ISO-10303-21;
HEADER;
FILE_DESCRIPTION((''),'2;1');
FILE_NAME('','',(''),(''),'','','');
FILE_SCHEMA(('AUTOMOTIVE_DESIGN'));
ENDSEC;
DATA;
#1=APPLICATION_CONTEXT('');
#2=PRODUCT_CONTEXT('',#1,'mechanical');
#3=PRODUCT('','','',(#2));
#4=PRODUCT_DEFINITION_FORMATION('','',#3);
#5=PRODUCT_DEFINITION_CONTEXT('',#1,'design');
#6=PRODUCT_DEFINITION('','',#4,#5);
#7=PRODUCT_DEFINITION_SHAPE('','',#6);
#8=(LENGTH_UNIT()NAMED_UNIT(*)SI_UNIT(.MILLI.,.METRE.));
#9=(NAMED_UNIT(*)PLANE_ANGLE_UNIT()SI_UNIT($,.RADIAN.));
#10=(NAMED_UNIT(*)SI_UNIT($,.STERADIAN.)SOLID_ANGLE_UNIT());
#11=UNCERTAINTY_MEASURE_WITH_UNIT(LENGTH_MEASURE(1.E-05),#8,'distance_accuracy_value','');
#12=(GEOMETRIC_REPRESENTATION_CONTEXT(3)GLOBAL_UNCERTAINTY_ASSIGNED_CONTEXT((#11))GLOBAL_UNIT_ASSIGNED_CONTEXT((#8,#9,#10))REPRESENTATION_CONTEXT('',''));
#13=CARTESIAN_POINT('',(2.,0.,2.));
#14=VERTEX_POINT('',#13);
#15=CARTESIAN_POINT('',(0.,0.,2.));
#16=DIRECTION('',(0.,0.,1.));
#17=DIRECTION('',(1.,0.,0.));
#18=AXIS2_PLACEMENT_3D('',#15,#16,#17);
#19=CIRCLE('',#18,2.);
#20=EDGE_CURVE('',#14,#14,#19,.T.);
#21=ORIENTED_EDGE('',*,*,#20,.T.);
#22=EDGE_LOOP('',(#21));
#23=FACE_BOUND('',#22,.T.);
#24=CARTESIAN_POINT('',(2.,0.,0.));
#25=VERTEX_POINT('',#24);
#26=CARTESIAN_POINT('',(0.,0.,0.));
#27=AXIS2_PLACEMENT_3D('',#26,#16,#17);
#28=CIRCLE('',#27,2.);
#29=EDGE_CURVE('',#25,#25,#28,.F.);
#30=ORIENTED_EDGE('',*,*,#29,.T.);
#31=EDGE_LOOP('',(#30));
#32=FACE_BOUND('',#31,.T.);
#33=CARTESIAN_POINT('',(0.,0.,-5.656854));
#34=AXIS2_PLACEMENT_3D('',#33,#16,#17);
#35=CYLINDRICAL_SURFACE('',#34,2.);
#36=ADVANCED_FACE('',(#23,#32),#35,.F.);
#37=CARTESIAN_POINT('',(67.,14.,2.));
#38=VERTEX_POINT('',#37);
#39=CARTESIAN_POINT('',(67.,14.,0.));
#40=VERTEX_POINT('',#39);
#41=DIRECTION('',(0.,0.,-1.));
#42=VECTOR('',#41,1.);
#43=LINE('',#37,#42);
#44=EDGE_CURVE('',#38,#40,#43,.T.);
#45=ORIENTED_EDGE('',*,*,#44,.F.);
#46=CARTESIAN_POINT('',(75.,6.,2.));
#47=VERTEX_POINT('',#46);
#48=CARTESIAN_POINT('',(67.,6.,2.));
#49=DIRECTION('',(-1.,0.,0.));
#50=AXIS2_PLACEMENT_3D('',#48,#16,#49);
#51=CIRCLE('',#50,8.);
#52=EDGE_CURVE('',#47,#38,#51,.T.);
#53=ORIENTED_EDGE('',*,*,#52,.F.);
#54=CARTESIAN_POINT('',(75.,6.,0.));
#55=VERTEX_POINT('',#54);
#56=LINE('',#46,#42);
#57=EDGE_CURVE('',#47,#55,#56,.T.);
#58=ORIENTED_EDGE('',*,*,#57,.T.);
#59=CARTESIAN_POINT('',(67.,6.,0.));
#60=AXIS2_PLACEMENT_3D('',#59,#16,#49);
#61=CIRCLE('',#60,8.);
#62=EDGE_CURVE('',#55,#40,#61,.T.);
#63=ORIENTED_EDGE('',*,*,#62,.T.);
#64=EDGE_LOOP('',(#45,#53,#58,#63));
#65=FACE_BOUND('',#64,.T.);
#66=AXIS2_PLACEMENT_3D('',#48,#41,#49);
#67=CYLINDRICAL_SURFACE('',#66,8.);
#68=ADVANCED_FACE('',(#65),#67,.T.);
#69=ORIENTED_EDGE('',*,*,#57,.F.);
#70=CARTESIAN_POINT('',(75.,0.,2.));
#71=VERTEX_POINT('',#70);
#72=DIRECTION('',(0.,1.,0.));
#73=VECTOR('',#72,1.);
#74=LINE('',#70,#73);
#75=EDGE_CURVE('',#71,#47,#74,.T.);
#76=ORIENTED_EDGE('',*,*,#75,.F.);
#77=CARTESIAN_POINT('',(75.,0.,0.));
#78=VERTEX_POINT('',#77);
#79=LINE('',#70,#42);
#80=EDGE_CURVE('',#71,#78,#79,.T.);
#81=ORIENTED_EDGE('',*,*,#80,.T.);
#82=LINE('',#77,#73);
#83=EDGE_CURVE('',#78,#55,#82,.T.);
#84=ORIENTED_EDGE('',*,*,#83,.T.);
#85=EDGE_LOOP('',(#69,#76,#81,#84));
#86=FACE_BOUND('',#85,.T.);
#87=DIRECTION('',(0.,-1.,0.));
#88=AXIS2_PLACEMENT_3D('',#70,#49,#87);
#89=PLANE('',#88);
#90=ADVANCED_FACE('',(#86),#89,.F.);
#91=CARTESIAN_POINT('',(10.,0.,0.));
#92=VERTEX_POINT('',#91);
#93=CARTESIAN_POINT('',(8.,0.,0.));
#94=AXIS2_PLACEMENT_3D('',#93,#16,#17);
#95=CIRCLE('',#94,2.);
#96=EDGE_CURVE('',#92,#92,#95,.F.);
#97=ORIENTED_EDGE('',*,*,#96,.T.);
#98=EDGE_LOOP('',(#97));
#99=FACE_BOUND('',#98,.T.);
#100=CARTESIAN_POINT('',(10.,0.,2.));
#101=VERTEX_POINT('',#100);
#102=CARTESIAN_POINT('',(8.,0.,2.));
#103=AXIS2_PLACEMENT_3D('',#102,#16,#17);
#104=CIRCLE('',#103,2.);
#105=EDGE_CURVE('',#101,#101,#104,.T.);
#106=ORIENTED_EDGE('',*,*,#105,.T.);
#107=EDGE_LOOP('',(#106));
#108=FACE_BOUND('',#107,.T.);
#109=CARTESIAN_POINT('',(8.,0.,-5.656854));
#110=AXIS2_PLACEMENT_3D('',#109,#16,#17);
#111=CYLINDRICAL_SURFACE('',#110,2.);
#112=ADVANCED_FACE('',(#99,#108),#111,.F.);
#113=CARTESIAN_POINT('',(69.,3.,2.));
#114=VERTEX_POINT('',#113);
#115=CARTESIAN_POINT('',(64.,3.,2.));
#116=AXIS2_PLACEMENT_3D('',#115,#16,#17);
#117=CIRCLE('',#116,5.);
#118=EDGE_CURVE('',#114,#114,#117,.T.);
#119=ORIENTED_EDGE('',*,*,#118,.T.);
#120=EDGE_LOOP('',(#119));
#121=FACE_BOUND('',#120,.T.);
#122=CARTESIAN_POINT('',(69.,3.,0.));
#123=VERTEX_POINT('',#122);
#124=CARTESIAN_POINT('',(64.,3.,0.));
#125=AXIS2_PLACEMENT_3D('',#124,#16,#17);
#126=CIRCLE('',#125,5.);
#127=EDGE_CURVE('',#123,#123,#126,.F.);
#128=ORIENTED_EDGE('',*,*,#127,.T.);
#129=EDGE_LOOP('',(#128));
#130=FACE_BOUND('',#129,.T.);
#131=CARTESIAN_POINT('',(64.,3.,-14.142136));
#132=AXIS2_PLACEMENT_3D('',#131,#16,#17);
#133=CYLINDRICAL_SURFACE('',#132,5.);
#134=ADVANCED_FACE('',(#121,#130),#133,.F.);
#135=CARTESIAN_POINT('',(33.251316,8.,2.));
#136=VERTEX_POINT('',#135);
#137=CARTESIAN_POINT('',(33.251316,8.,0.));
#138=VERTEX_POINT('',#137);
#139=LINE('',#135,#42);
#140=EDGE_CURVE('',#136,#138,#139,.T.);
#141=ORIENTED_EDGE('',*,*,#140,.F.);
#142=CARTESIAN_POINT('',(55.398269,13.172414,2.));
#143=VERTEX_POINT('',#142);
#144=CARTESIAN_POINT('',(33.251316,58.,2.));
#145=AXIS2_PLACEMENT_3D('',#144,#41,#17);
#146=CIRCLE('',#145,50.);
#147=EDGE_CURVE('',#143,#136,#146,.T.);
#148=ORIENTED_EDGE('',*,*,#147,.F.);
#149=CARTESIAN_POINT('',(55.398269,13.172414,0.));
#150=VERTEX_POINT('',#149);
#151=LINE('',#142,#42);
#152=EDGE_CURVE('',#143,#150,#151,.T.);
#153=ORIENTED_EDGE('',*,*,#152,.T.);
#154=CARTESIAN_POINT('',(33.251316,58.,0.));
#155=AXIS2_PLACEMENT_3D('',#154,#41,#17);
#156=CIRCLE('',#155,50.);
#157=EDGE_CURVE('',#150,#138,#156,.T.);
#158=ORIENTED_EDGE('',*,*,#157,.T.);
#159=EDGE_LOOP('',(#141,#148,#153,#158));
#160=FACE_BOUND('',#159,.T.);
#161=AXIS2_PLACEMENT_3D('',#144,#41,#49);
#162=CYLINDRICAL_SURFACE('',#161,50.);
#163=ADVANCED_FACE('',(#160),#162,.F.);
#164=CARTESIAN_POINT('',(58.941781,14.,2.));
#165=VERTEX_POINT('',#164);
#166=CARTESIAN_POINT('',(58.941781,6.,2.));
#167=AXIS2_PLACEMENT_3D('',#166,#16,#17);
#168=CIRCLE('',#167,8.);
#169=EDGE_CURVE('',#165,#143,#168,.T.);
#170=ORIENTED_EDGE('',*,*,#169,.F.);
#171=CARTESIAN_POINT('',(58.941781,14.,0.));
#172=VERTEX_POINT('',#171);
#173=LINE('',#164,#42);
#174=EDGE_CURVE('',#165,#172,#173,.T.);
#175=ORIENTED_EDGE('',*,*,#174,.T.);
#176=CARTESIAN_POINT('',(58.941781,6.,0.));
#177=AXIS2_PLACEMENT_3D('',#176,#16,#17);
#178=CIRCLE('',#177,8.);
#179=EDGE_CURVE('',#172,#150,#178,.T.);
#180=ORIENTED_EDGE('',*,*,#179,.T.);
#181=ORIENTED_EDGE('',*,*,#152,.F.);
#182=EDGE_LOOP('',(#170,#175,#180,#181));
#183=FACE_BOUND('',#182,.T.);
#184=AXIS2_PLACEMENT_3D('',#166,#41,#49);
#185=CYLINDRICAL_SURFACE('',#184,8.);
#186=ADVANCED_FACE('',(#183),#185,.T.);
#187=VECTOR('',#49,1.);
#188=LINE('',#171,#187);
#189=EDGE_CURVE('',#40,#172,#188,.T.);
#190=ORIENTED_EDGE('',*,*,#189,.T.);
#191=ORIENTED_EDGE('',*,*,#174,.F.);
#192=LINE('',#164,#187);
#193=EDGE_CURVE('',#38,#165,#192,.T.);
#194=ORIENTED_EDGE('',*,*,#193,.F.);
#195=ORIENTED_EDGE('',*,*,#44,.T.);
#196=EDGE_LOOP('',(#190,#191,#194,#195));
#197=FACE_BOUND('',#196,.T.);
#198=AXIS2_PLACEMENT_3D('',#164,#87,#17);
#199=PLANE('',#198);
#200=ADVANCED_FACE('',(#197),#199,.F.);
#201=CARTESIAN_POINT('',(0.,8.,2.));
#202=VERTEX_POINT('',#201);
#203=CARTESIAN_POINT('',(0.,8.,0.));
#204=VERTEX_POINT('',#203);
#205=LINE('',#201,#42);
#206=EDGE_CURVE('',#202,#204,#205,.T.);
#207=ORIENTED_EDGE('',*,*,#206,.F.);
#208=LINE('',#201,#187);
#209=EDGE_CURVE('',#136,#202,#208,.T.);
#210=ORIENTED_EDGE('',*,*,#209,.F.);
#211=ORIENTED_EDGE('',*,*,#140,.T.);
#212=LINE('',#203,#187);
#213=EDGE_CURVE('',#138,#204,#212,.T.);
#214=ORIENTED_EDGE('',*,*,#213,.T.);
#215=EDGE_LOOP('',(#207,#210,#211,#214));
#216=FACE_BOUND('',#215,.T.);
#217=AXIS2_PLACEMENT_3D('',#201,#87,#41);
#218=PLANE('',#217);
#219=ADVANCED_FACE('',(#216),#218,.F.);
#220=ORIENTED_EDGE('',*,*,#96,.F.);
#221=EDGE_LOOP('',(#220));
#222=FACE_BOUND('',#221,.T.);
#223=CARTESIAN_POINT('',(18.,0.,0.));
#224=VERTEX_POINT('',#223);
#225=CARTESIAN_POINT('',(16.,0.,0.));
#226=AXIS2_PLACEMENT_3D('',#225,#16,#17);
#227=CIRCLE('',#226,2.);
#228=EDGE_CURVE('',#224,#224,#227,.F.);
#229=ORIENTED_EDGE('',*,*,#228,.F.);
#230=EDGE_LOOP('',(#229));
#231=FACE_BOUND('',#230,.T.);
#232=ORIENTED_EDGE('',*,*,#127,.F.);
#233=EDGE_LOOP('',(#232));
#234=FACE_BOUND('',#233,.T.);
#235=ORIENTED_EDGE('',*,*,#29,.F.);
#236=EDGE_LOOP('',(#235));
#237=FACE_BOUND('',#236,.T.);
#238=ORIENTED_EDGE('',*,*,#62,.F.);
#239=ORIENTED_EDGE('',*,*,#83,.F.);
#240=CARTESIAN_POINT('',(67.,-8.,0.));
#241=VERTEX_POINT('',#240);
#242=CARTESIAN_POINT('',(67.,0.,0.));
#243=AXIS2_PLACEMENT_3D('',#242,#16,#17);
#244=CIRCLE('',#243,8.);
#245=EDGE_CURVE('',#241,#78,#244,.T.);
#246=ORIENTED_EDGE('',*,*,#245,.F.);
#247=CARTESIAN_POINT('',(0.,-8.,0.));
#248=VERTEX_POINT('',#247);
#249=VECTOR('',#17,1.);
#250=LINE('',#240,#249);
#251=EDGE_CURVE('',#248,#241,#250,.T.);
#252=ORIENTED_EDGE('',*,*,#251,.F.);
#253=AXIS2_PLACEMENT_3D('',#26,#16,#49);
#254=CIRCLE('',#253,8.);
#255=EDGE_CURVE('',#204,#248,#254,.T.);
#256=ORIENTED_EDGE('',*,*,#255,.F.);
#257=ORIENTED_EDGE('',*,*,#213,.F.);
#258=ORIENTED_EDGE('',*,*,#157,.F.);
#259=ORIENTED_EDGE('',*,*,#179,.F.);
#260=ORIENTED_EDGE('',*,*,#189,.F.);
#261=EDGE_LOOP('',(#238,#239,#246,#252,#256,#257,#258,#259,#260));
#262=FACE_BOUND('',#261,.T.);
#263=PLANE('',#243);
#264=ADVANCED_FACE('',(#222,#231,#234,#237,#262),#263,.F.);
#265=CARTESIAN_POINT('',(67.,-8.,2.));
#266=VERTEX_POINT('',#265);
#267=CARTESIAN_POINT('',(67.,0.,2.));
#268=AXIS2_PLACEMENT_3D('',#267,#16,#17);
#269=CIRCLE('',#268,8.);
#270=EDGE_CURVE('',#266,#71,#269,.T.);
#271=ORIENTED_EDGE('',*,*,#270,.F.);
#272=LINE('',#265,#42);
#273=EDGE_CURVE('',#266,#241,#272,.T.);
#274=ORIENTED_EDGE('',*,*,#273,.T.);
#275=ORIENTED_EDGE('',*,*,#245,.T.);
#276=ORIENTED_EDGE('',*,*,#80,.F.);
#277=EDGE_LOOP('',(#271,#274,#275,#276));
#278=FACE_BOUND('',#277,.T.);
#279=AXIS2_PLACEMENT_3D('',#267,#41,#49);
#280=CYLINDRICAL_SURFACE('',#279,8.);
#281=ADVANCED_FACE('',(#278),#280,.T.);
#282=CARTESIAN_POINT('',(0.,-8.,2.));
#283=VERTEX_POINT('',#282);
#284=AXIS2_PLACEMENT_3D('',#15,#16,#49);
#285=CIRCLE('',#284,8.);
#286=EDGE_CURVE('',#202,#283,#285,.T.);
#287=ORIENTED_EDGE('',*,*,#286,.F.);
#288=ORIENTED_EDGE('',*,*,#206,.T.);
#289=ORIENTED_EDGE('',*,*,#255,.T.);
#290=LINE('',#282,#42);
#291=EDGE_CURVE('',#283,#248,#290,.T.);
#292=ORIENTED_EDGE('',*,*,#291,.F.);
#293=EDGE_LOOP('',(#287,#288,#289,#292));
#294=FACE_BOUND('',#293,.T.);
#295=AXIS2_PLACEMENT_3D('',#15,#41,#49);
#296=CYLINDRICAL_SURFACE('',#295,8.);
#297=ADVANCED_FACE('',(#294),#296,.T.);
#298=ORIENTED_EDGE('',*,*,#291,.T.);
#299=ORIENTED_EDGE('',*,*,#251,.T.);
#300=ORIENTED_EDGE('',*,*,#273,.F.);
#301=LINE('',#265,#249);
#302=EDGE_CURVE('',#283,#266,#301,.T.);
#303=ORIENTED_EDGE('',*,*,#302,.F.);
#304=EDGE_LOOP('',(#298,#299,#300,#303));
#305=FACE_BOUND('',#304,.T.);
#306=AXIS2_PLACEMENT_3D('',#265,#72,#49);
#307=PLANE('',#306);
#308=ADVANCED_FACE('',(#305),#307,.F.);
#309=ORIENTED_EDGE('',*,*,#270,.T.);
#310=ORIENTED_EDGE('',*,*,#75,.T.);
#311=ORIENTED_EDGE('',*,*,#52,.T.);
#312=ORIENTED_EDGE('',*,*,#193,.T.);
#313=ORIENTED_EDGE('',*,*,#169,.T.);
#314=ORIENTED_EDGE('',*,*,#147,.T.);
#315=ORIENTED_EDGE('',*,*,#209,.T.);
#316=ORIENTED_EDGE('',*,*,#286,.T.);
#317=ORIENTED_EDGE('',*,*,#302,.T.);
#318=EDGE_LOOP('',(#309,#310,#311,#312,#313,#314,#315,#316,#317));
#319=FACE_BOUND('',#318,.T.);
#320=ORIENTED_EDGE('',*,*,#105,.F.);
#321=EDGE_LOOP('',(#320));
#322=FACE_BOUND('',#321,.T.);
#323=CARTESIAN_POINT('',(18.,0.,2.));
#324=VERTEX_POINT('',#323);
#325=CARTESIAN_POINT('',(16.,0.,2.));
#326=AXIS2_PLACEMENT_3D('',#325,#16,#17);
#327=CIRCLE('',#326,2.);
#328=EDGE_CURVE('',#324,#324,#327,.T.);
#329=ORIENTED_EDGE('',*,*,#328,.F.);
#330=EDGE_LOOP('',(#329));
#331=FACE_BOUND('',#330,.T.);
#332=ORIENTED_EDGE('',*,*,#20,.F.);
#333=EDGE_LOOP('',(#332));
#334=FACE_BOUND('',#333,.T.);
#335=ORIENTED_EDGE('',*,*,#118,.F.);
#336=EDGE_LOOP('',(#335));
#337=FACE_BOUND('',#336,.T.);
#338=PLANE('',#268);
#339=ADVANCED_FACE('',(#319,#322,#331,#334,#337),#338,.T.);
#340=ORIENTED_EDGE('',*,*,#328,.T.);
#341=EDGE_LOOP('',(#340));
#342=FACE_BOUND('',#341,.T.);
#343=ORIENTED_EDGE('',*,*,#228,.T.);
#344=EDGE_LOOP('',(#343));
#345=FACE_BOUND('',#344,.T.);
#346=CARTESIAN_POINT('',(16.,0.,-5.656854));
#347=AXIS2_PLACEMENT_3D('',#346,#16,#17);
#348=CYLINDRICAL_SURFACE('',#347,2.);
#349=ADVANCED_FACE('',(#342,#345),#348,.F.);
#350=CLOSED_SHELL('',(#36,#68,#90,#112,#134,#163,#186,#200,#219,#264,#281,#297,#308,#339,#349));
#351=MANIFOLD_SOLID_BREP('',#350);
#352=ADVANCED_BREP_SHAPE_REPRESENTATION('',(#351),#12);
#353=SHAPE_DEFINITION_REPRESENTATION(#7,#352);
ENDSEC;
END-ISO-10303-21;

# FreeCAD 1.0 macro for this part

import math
import FreeCAD as App
import Part
import Sketcher
Q = App.Units.Quantity

doc = App.newDocument("Part")
body = doc.addObject("PartDesign::Body", "Body")

# Sketch on XY plane
sketch1 = body.newObject("Sketcher::SketchObject", "Sketch")
sketch1.AttachmentSupport = (doc.getObject("XY_Plane"), [""])
sketch1.MapMode = "FlatFace"
sketch1.addGeometry(Part.LineSegment(App.Vector(33.3, 8, 0), App.Vector(0, 8, 0)), False)
sketch1.addGeometry(Part.ArcOfCircle(Part.Circle(App.Vector(0, 0, 0), App.Vector(0, 0, 1), 8), math.radians(90), math.radians(270)), False)
sketch1.addGeometry(Part.LineSegment(App.Vector(0, -8, 0), App.Vector(67, -8, 0)), False)
sketch1.addGeometry(Part.ArcOfCircle(Part.Circle(App.Vector(67, 0, 0), App.Vector(0, 0, 1), 8), math.radians(-90), math.radians(0)), False)
sketch1.addGeometry(Part.LineSegment(App.Vector(75, 0, 0), App.Vector(75, 6, 0)), False)
sketch1.addGeometry(Part.ArcOfCircle(Part.Circle(App.Vector(67, 6, 0), App.Vector(0, 0, 1), 8), math.radians(0), math.radians(90)), False)
sketch1.addGeometry(Part.LineSegment(App.Vector(67, 14, 0), App.Vector(58.9, 14, 0)), False)
sketch1.addGeometry(Part.ArcOfCircle(Part.Circle(App.Vector(58.9, 6, 0), App.Vector(0, 0, 1), 8), math.radians(90), math.radians(116)), False)
sketch1.addGeometry(Part.ArcOfCircle(Part.Circle(App.Vector(33.3, 58, 0), App.Vector(0, 0, 1), 50), math.radians(-90), math.radians(-64)), False)
sketch1.addConstraint(Sketcher.Constraint("Tangent", 0, 2, 1, 1))
sketch1.addConstraint(Sketcher.Constraint("Tangent", 1, 2, 2, 1))
sketch1.addConstraint(Sketcher.Constraint("Tangent", 2, 2, 3, 1))
sketch1.addConstraint(Sketcher.Constraint("Tangent", 3, 2, 4, 1))
sketch1.addConstraint(Sketcher.Constraint("Tangent", 4, 2, 5, 1))
sketch1.addConstraint(Sketcher.Constraint("Tangent", 5, 2, 6, 1))
sketch1.addConstraint(Sketcher.Constraint("Tangent", 6, 2, 7, 1))
sketch1.addConstraint(Sketcher.Constraint("Tangent", 7, 2, 8, 2))
sketch1.addConstraint(Sketcher.Constraint("Tangent", 8, 1, 0, 1))
sketch1.addConstraint(Sketcher.Constraint("Horizontal", 0))
sketch1.addConstraint(Sketcher.Constraint("Horizontal", 2))
sketch1.addConstraint(Sketcher.Constraint("Vertical", 4))
sketch1.addConstraint(Sketcher.Constraint("Horizontal", 6))
sketch1.addConstraint(Sketcher.Constraint("Coincident", 1, 3, -1, 1))
sketch1.addConstraint(Sketcher.Constraint("Equal", 1, 3))
sketch1.addConstraint(Sketcher.Constraint("Equal", 3, 5))
sketch1.addConstraint(Sketcher.Constraint("Equal", 5, 7))
sketch1.addConstraint(Sketcher.Constraint("Radius", 1, Q("8 mm")))
sketch1.addConstraint(Sketcher.Constraint("Radius", 8, Q("50 mm")))
sketch1.addConstraint(Sketcher.Constraint("DistanceX", 2, 1, 2, 2, Q("67 mm")))
sketch1.addConstraint(Sketcher.Constraint("DistanceY", 4, 1, 4, 2, Q("6 mm")))
sketch1.addConstraint(Sketcher.Constraint("DistanceX", 6, 2, 6, 1, Q("8.058219 mm")))
pad1 = body.newObject("PartDesign::Pad", "Pad")
pad1.Profile = sketch1
pad1.Length = 2

# Sketch on XY plane
sketch2 = body.newObject("Sketcher::SketchObject", "Sketch001")
sketch2.AttachmentSupport = (doc.getObject("XY_Plane"), [""])
sketch2.MapMode = "FlatFace"
sketch2.AttachmentOffset = App.Placement(App.Vector(0, 0, 2), App.Rotation())
sketch2.addGeometry(Part.Circle(App.Vector(0, 0, 0), App.Vector(0, 0, 1), 2), False)
sketch2.addGeometry(Part.Circle(App.Vector(8, 0, 0), App.Vector(0, 0, 1), 2), False)
sketch2.addGeometry(Part.Circle(App.Vector(16, 0, 0), App.Vector(0, 0, 1), 2), False)
sketch2.addConstraint(Sketcher.Constraint("Coincident", 0, 3, -1, 1))
sketch2.addConstraint(Sketcher.Constraint("Equal", 0, 1))
sketch2.addConstraint(Sketcher.Constraint("Equal", 1, 2))
sketch2.addConstraint(Sketcher.Constraint("PointOnObject", 1, 3, -1))
sketch2.addConstraint(Sketcher.Constraint("PointOnObject", 2, 3, -1))
sketch2.addConstraint(Sketcher.Constraint("Diameter", 0, Q("4 mm")))
sketch2.addConstraint(Sketcher.Constraint("DistanceX", -1, 1, 1, 3, Q("8 mm")))
sketch2.addConstraint(Sketcher.Constraint("DistanceX", -1, 1, 2, 3, Q("16 mm")))
pocket1 = body.newObject("PartDesign::Pocket", "Pocket")
pocket1.Profile = sketch2
pocket1.Length = 2

# Sketch on XY plane
sketch3 = body.newObject("Sketcher::SketchObject", "Sketch002")
sketch3.AttachmentSupport = (doc.getObject("XY_Plane"), [""])
sketch3.MapMode = "FlatFace"
sketch3.AttachmentOffset = App.Placement(App.Vector(0, 0, 2), App.Rotation())
sketch3.addGeometry(Part.Circle(App.Vector(64, 3, 0), App.Vector(0, 0, 1), 5), False)
sketch3.addConstraint(Sketcher.Constraint("Diameter", 0, Q("10 mm")))
sketch3.addConstraint(Sketcher.Constraint("DistanceX", -1, 1, 0, 3, Q("64 mm")))
sketch3.addConstraint(Sketcher.Constraint("DistanceY", -1, 1, 0, 3, Q("3 mm")))
pocket2 = body.newObject("PartDesign::Pocket", "Pocket001")
pocket2.Profile = sketch3
pocket2.Length = 2

doc.recompute()
